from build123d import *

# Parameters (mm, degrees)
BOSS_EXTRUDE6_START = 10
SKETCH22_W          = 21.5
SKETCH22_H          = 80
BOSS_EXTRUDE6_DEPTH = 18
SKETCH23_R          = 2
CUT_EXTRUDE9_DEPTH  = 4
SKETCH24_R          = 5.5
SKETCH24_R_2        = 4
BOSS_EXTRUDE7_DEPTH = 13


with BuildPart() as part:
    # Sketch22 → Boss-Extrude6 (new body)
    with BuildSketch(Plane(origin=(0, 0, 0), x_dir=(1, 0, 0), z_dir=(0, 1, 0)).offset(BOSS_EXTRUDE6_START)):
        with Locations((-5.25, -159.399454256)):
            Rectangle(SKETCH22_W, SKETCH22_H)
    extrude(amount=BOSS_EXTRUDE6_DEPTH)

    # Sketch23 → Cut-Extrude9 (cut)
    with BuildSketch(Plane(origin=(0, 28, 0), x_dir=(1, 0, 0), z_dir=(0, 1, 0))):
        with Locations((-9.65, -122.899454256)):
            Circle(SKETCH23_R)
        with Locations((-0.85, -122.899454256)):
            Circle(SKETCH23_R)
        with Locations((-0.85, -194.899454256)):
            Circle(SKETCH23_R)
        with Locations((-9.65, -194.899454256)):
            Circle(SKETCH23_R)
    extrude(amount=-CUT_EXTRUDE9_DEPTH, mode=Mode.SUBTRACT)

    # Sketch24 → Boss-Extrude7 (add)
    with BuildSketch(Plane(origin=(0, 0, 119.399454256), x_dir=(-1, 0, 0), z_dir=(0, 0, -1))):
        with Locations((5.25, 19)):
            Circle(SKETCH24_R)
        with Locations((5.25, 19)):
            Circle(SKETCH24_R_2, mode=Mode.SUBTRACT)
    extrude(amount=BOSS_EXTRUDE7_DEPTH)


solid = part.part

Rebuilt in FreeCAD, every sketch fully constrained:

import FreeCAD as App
import Part
import Sketcher
Q = App.Units.Quantity


def add_polygon(sketch, points):
    """Adds a closed chain of lines whose ends are joined by coincident constraints."""
    first, n = sketch.GeometryCount, len(points)
    for a, b in zip(points, points[1:] + points[:1]):
        sketch.addGeometry(Part.LineSegment(App.Vector(*a, 0), App.Vector(*b, 0)), False)
    for i in range(n):
        sketch.addConstraint(Sketcher.Constraint("Coincident", first + i, 2, first + (i + 1) % n, 1))

doc = App.newDocument("Part")
params = doc.addObject("Spreadsheet::Sheet", "Params")
for row, (alias, value) in enumerate([
    ("sketch1_height", "80 mm"),
    ("sketch1_width", "21.5 mm"),
    ("pad1_length", "18 mm"),
    ("sketch2_diameter", "4 mm"),
    ("pocket1_length", "4 mm"),
    ("sketch3_diameter", "11 mm"),
    ("sketch3_diameter2", "8 mm"),
    ("pad2_length", "13 mm"),
], start=1):
    params.set(f"A{row}", alias)
    params.set(f"B{row}", "=" + value)
    params.setAlias(f"B{row}", alias)

body = doc.addObject("PartDesign::Body", "Body")

sketch1 = doc.addObject("Sketcher::SketchObject", "Sketch")
body.addObject(sketch1)
sketch1.AttachmentSupport = (doc.XZ_Plane, [""])
sketch1.MapMode = "FlatFace"
sketch1.AttachmentOffset = App.Placement(App.Vector(0, 0, -10), App.Rotation())
add_polygon(sketch1, [(-16, 119.399454), (-16, 199.399454), (5.5, 199.399454), (5.5, 119.399454)])
sketch1.addConstraint([
    Sketcher.Constraint("Vertical", 0),
    Sketcher.Constraint("Horizontal", 1),
    Sketcher.Constraint("Vertical", 2),
    Sketcher.Constraint("Horizontal", 3),
    Sketcher.Constraint("DistanceY", 0, 1, 0, 2, Q("80 mm")),
    Sketcher.Constraint("DistanceX", 1, 1, 1, 2, Q("21.5 mm")),
    Sketcher.Constraint("DistanceX", 0, 2, -1, 1, Q("16 mm")),
    Sketcher.Constraint("DistanceY", -1, 1, 0, 2, Q("199.399454 mm")),
])
sketch1.setExpression("Constraints[8]", "Params.sketch1_height")
sketch1.setExpression("Constraints[9]", "Params.sketch1_width")
pad1 = doc.addObject("PartDesign::Pad", "Pad")
body.addObject(pad1)
pad1.Profile = sketch1
pad1.setExpression("Length", "Params.pad1_length")
pad1.Reversed = True

sketch2 = doc.addObject("Sketcher::SketchObject", "Sketch001")
body.addObject(sketch2)
sketch2.AttachmentSupport = (doc.XZ_Plane, [""])
sketch2.MapMode = "FlatFace"
sketch2.AttachmentOffset = App.Placement(App.Vector(0, 0, -28), App.Rotation())
sketch2.addGeometry([
    Part.Circle(App.Vector(-9.65, 122.899454, 0), App.Vector(0, 0, 1), 2),
    Part.Circle(App.Vector(-0.85, 122.899454, 0), App.Vector(0, 0, 1), 2),
    Part.Circle(App.Vector(-0.85, 194.899454, 0), App.Vector(0, 0, 1), 2),
    Part.Circle(App.Vector(-9.65, 194.899454, 0), App.Vector(0, 0, 1), 2),
], False)
sketch2.addConstraint([
    Sketcher.Constraint("Equal", 0, 1),
    Sketcher.Constraint("Equal", 1, 2),
    Sketcher.Constraint("Equal", 2, 3),
    Sketcher.Constraint("Horizontal", 0, 3, 1, 3),
    Sketcher.Constraint("Horizontal", 2, 3, 3, 3),
    Sketcher.Constraint("Vertical", 1, 3, 2, 3),
    Sketcher.Constraint("Vertical", 0, 3, 3, 3),
    Sketcher.Constraint("Diameter", 0, Q("4 mm")),
    Sketcher.Constraint("DistanceY", 1, 3, 2, 3, Q("72 mm")),
    Sketcher.Constraint("DistanceX", 0, 3, 1, 3, Q("8.8 mm")),
    Sketcher.Constraint("DistanceX", 0, 3, -1, 1, Q("9.65 mm")),
    Sketcher.Constraint("DistanceY", -1, 1, 0, 3, Q("122.899454 mm")),
])
sketch2.setExpression("Constraints[7]", "Params.sketch2_diameter")
pocket1 = doc.addObject("PartDesign::Pocket", "Pocket")
body.addObject(pocket1)
pocket1.Profile = sketch2
pocket1.setExpression("Length", "Params.pocket1_length")
pocket1.Reversed = True

sketch3 = doc.addObject("Sketcher::SketchObject", "Sketch002")
body.addObject(sketch3)
sketch3.AttachmentSupport = (doc.XY_Plane, [""])
sketch3.MapMode = "FlatFace"
sketch3.AttachmentOffset = App.Placement(App.Vector(0, 0, 119.399454), App.Rotation())
sketch3.addGeometry([
    Part.Circle(App.Vector(-5.25, 19, 0), App.Vector(0, 0, 1), 5.5),
    Part.Circle(App.Vector(-5.25, 19, 0), App.Vector(0, 0, 1), 4),
], False)
sketch3.addConstraint([
    Sketcher.Constraint("Coincident", 1, 3, 0, 3),
    Sketcher.Constraint("Diameter", 0, Q("11 mm")),
    Sketcher.Constraint("Diameter", 1, Q("8 mm")),
    Sketcher.Constraint("DistanceY", -1, 1, 0, 3, Q("19 mm")),
    Sketcher.Constraint("DistanceX", 0, 3, -1, 1, Q("5.25 mm")),
])
sketch3.setExpression("Constraints[1]", "Params.sketch3_diameter")
sketch3.setExpression("Constraints[2]", "Params.sketch3_diameter2")
pad2 = doc.addObject("PartDesign::Pad", "Pad001")
body.addObject(pad2)
pad2.Profile = sketch3
pad2.setExpression("Length", "Params.pad2_length")
pad2.Reversed = True

doc.recompute()
